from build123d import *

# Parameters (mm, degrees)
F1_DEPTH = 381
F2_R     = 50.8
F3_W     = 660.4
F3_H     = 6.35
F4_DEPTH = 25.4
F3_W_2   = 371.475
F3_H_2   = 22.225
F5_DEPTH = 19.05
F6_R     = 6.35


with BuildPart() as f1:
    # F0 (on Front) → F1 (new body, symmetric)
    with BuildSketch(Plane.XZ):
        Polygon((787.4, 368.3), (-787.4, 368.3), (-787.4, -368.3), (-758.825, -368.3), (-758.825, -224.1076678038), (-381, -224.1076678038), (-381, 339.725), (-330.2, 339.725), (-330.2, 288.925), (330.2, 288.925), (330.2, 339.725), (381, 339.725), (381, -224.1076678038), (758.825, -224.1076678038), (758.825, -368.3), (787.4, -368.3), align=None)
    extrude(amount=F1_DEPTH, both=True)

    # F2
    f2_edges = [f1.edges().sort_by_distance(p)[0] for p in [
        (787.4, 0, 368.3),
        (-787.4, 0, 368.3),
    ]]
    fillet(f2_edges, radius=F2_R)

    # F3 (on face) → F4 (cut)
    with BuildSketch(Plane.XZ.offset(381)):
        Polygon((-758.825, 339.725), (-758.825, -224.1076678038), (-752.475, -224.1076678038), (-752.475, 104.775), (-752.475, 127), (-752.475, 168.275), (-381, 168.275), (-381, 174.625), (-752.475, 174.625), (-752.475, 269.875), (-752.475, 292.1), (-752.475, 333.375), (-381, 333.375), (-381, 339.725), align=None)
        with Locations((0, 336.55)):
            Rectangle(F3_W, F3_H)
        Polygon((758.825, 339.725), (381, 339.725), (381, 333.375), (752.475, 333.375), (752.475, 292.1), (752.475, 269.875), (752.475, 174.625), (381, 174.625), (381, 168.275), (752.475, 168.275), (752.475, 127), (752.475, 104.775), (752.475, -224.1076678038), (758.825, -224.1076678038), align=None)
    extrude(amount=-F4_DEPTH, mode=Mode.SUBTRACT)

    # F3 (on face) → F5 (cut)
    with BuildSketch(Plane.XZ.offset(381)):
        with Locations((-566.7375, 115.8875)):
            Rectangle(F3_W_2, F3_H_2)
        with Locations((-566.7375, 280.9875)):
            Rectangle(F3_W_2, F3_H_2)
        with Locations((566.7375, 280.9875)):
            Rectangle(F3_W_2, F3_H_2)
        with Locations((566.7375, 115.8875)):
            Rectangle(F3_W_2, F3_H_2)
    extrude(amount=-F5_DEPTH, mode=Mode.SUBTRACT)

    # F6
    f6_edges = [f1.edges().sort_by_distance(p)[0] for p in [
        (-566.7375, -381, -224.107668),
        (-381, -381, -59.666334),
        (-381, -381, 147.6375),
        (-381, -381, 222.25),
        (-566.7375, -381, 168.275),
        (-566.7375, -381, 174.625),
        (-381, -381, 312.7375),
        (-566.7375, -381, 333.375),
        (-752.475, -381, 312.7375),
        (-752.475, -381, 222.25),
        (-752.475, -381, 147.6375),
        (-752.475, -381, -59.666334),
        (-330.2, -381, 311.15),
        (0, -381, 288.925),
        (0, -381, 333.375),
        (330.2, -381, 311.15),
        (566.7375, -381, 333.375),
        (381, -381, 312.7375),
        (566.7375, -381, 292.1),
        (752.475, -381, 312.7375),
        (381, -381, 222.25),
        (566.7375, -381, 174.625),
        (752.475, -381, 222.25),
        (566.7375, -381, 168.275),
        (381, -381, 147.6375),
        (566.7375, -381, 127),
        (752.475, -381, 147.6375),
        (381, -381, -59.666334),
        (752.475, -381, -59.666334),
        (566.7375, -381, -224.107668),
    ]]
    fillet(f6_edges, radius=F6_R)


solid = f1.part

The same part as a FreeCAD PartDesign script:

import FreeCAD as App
import Part
import Sketcher

V = App.Vector
Q = App.Units.Quantity


def edges_at(feature, points):
    """Names of the edges that pass closest to the given points."""
    edges = feature.Shape.Edges
    near = lambda p: min(range(len(edges)), key=lambda i: edges[i].distToShape(Part.Vertex(*p))[0])
    return sorted({f"Edge{near(p) + 1}" for p in points})

doc = App.newDocument("Part")
body = doc.addObject("PartDesign::Body", "Body")

# Sketch on XZ plane
sketch1 = body.newObject("Sketcher::SketchObject", "Sketch")
sketch1.AttachmentSupport = (doc.getObject("XZ_Plane"), [""])
sketch1.MapMode = "FlatFace"
sketch1.addGeometry([
    Part.LineSegment(V(787.4, 368.3, 0), V(-787.4, 368.3, 0)),  # 0
    Part.LineSegment(V(-787.4, 368.3, 0), V(-787.4, -368.3, 0)),  # 1
    Part.LineSegment(V(-787.4, -368.3, 0), V(-758.825, -368.3, 0)),  # 2
    Part.LineSegment(V(-758.825, -368.3, 0), V(-758.825, -224.107668, 0)),  # 3
    Part.LineSegment(V(-758.825, -224.107668, 0), V(-381, -224.107668, 0)),  # 4
    Part.LineSegment(V(-381, -224.107668, 0), V(-381, 339.725, 0)),  # 5
    Part.LineSegment(V(-381, 339.725, 0), V(-330.2, 339.725, 0)),  # 6
    Part.LineSegment(V(-330.2, 339.725, 0), V(-330.2, 288.925, 0)),  # 7
    Part.LineSegment(V(-330.2, 288.925, 0), V(330.2, 288.925, 0)),  # 8
    Part.LineSegment(V(330.2, 288.925, 0), V(330.2, 339.725, 0)),  # 9
    Part.LineSegment(V(330.2, 339.725, 0), V(381, 339.725, 0)),  # 10
    Part.LineSegment(V(381, 339.725, 0), V(381, -224.107668, 0)),  # 11
    Part.LineSegment(V(381, -224.107668, 0), V(758.825, -224.107668, 0)),  # 12
    Part.LineSegment(V(758.825, -224.107668, 0), V(758.825, -368.3, 0)),  # 13
    Part.LineSegment(V(758.825, -368.3, 0), V(787.4, -368.3, 0)),  # 14
    Part.LineSegment(V(787.4, -368.3, 0), V(787.4, 368.3, 0)),  # 15
], False)
sketch1.addConstraint([
    Sketcher.Constraint("Coincident", 0, 2, 1, 1),
    Sketcher.Constraint("Coincident", 1, 2, 2, 1),
    Sketcher.Constraint("Coincident", 2, 2, 3, 1),
    Sketcher.Constraint("Coincident", 3, 2, 4, 1),
    Sketcher.Constraint("Coincident", 4, 2, 5, 1),
    Sketcher.Constraint("Coincident", 5, 2, 6, 1),
    Sketcher.Constraint("Coincident", 6, 2, 7, 1),
    Sketcher.Constraint("Coincident", 7, 2, 8, 1),
    Sketcher.Constraint("Coincident", 8, 2, 9, 1),
    Sketcher.Constraint("Coincident", 9, 2, 10, 1),
    Sketcher.Constraint("Coincident", 10, 2, 11, 1),
    Sketcher.Constraint("Coincident", 11, 2, 12, 1),
    Sketcher.Constraint("Coincident", 12, 2, 13, 1),
    Sketcher.Constraint("Coincident", 13, 2, 14, 1),
    Sketcher.Constraint("Coincident", 14, 2, 15, 1),
    Sketcher.Constraint("Coincident", 15, 2, 0, 1),
    Sketcher.Constraint("Horizontal", 0),
    Sketcher.Constraint("Vertical", 1),
    Sketcher.Constraint("Horizontal", 2),
    Sketcher.Constraint("Vertical", 3),
    Sketcher.Constraint("Horizontal", 4),
    Sketcher.Constraint("Vertical", 5),
    Sketcher.Constraint("Horizontal", 6),
    Sketcher.Constraint("Vertical", 7),
    Sketcher.Constraint("Horizontal", 8),
    Sketcher.Constraint("Vertical", 9),
    Sketcher.Constraint("Horizontal", 10),
    Sketcher.Constraint("Vertical", 11),
    Sketcher.Constraint("Horizontal", 12),
    Sketcher.Constraint("Vertical", 13),
    Sketcher.Constraint("Horizontal", 14),
    Sketcher.Constraint("Vertical", 15),
    Sketcher.Constraint("Symmetric", 0, 2, 14, 2, -1, 1),
    Sketcher.Constraint("Symmetric", 6, 2, 9, 2, -2),
    Sketcher.Constraint("Symmetric", 4, 2, 11, 2, -2),
    Sketcher.Constraint("Symmetric", 2, 2, 13, 2, -2),
    Sketcher.Constraint("Equal", 10, 7),
    Sketcher.Constraint("DistanceX", 0, 2, 0, 1, Q("62 in")),
    Sketcher.Constraint("DistanceX", 6, 1, 6, 2, Q("2 in")),
    Sketcher.Constraint("DistanceX", 8, 1, 8, 2, Q("26 in")),
    Sketcher.Constraint("DistanceY", 1, 2, 1, 1, Q("29 in")),
    Sketcher.Constraint("DistanceX", 2, 1, 2, 2, Q("1.125 in")),
    Sketcher.Constraint("DistanceY", -1, 1, 5, 2, Q("13.375 in")),
    Sketcher.Constraint("DistanceY", 3, 1, 3, 2, 144.192332),
])
pad1 = body.newObject("PartDesign::Pad", "Pad")
pad1.Profile = sketch1
pad1.Length = Q("30 in")
pad1.Midplane = True
doc.recompute()

fillet = body.newObject("PartDesign::Fillet", "Fillet")
fillet.Base = (pad1, edges_at(pad1, [(787.4, 0, 368.3), (-787.4, 0, 368.3)]))
fillet.Radius = Q("2 in")

# Sketch on XZ plane
sketch2 = body.newObject("Sketcher::SketchObject", "Sketch001")
sketch2.AttachmentSupport = (doc.getObject("XZ_Plane"), [""])
sketch2.MapMode = "FlatFace"
sketch2.AttachmentOffset = App.Placement(V(0, 0, 15 * 25.4), App.Rotation())
sketch2.addGeometry([
    Part.LineSegment(V(-758.825, 339.725, 0), V(-758.825, -224.107668, 0)),  # 0
    Part.LineSegment(V(-758.825, -224.107668, 0), V(-752.475, -224.107668, 0)),  # 1
    Part.LineSegment(V(-752.475, -224.107668, 0), V(-752.475, 168.275, 0)),  # 2
    Part.LineSegment(V(-752.475, 168.275, 0), V(-381, 168.275, 0)),  # 3
    Part.LineSegment(V(-381, 168.275, 0), V(-381, 174.625, 0)),  # 4
    Part.LineSegment(V(-381, 174.625, 0), V(-752.475, 174.625, 0)),  # 5
    Part.LineSegment(V(-752.475, 174.625, 0), V(-752.475, 333.375, 0)),  # 6
    Part.LineSegment(V(-752.475, 333.375, 0), V(-381, 333.375, 0)),  # 7
    Part.LineSegment(V(-381, 333.375, 0), V(-381, 339.725, 0)),  # 8
    Part.LineSegment(V(-381, 339.725, 0), V(-758.825, 339.725, 0)),  # 9
    Part.LineSegment(V(-330.2, 339.725, 0), V(-330.2, 333.375, 0)),  # 10
    Part.LineSegment(V(-330.2, 333.375, 0), V(330.2, 333.375, 0)),  # 11
    Part.LineSegment(V(330.2, 333.375, 0), V(330.2, 339.725, 0)),  # 12
    Part.LineSegment(V(330.2, 339.725, 0), V(-330.2, 339.725, 0)),  # 13
    Part.LineSegment(V(758.825, 339.725, 0), V(381, 339.725, 0)),  # 14
    Part.LineSegment(V(381, 339.725, 0), V(381, 333.375, 0)),  # 15
    Part.LineSegment(V(381, 333.375, 0), V(752.475, 333.375, 0)),  # 16
    Part.LineSegment(V(752.475, 333.375, 0), V(752.475, 174.625, 0)),  # 17
    Part.LineSegment(V(752.475, 174.625, 0), V(381, 174.625, 0)),  # 18
    Part.LineSegment(V(381, 174.625, 0), V(381, 168.275, 0)),  # 19
    Part.LineSegment(V(381, 168.275, 0), V(752.475, 168.275, 0)),  # 20
    Part.LineSegment(V(752.475, 168.275, 0), V(752.475, -224.107668, 0)),  # 21
    Part.LineSegment(V(752.475, -224.107668, 0), V(758.825, -224.107668, 0)),  # 22
    Part.LineSegment(V(758.825, -224.107668, 0), V(758.825, 339.725, 0)),  # 23
], False)
sketch2.addConstraint([
    Sketcher.Constraint("Coincident", 0, 2, 1, 1),
    Sketcher.Constraint("Coincident", 1, 2, 2, 1),
    Sketcher.Constraint("Coincident", 2, 2, 3, 1),
    Sketcher.Constraint("Coincident", 3, 2, 4, 1),
    Sketcher.Constraint("Coincident", 4, 2, 5, 1),
    Sketcher.Constraint("Coincident", 5, 2, 6, 1),
    Sketcher.Constraint("Coincident", 6, 2, 7, 1),
    Sketcher.Constraint("Coincident", 7, 2, 8, 1),
    Sketcher.Constraint("Coincident", 8, 2, 9, 1),
    Sketcher.Constraint("Coincident", 9, 2, 0, 1),
    Sketcher.Constraint("Coincident", 10, 2, 11, 1),
    Sketcher.Constraint("Coincident", 11, 2, 12, 1),
    Sketcher.Constraint("Coincident", 12, 2, 13, 1),
    Sketcher.Constraint("Coincident", 13, 2, 10, 1),
    Sketcher.Constraint("Coincident", 14, 2, 15, 1),
    Sketcher.Constraint("Coincident", 15, 2, 16, 1),
    Sketcher.Constraint("Coincident", 16, 2, 17, 1),
    Sketcher.Constraint("Coincident", 17, 2, 18, 1),
    Sketcher.Constraint("Coincident", 18, 2, 19, 1),
    Sketcher.Constraint("Coincident", 19, 2, 20, 1),
    Sketcher.Constraint("Coincident", 20, 2, 21, 1),
    Sketcher.Constraint("Coincident", 21, 2, 22, 1),
    Sketcher.Constraint("Coincident", 22, 2, 23, 1),
    Sketcher.Constraint("Coincident", 23, 2, 14, 1),
    Sketcher.Constraint("Vertical", 0),
    Sketcher.Constraint("Horizontal", 1),
    Sketcher.Constraint("Vertical", 2),
    Sketcher.Constraint("Horizontal", 3),
    Sketcher.Constraint("Vertical", 4),
    Sketcher.Constraint("Horizontal", 5),
    Sketcher.Constraint("Vertical", 6),
    Sketcher.Constraint("Horizontal", 7),
    Sketcher.Constraint("Vertical", 8),
    Sketcher.Constraint("Horizontal", 9),
    Sketcher.Constraint("Vertical", 10),
    Sketcher.Constraint("Horizontal", 11),
    Sketcher.Constraint("Vertical", 12),
    Sketcher.Constraint("Horizontal", 13),
    Sketcher.Constraint("Horizontal", 14),
    Sketcher.Constraint("Vertical", 15),
    Sketcher.Constraint("Horizontal", 16),
    Sketcher.Constraint("Vertical", 17),
    Sketcher.Constraint("Horizontal", 18),
    Sketcher.Constraint("Vertical", 19),
    Sketcher.Constraint("Horizontal", 20),
    Sketcher.Constraint("Vertical", 21),
    Sketcher.Constraint("Horizontal", 22),
    Sketcher.Constraint("Vertical", 23),
    Sketcher.Constraint("Symmetric", 8, 2, 14, 2, -2),
    Sketcher.Constraint("Symmetric", 6, 2, 16, 2, -2),
    Sketcher.Constraint("Symmetric", 4, 2, 18, 2, -2),
    Sketcher.Constraint("Symmetric", 2, 2, 20, 2, -2),
    Sketcher.Constraint("Symmetric", 0, 2, 22, 2, -2),
    Sketcher.Constraint("Horizontal", 7, 2, 10, 2),
    Sketcher.Constraint("Horizontal", 9, 2, 12, 2),
    Sketcher.Constraint("Vertical", 2, 2, 5, 2),
    Sketcher.Constraint("Vertical", 4, 2, 7, 2),
    Sketcher.Constraint("Equal", 22, 4),
    Sketcher.Constraint("Equal", 4, 8),
    Sketcher.Constraint("DistanceX", 11, 1, 11, 2, Q("26 in")),
    Sketcher.Constraint("DistanceX", 3, 2, -1, 1, Q("15 in")),
    Sketcher.Constraint("DistanceX", 10, 2, -1, 1, Q("13 in")),
    Sketcher.Constraint("DistanceX", 1, 1, 1, 2, Q("0.25 in")),
    Sketcher.Constraint("DistanceY", 6, 1, 6, 2, Q("6.25 in")),
    Sketcher.Constraint("DistanceX", 3, 1, 3, 2, Q("14.625 in")),
    Sketcher.Constraint("DistanceY", -1, 1, 2, 2, Q("6.625 in")),
    Sketcher.Constraint("DistanceY", 0, 2, 0, 1, 563.832668),
])
pocket1 = body.newObject("PartDesign::Pocket", "Pocket")
pocket1.Profile = sketch2
pocket1.Length = Q("1 in")

# Sketch on XZ plane
sketch3 = body.newObject("Sketcher::SketchObject", "Sketch002")
sketch3.AttachmentSupport = (doc.getObject("XZ_Plane"), [""])
sketch3.MapMode = "FlatFace"
sketch3.AttachmentOffset = App.Placement(V(0, 0, 15 * 25.4), App.Rotation())
sketch3.addGeometry([
    Part.LineSegment(V(-752.475, 127, 0), V(-752.475, 104.775, 0)),  # 0
    Part.LineSegment(V(-752.475, 104.775, 0), V(-381, 104.775, 0)),  # 1
    Part.LineSegment(V(-381, 104.775, 0), V(-381, 127, 0)),  # 2
    Part.LineSegment(V(-381, 127, 0), V(-752.475, 127, 0)),  # 3
    Part.LineSegment(V(-752.475, 292.1, 0), V(-752.475, 269.875, 0)),  # 4
    Part.LineSegment(V(-752.475, 269.875, 0), V(-381, 269.875, 0)),  # 5
    Part.LineSegment(V(-381, 269.875, 0), V(-381, 292.1, 0)),  # 6
    Part.LineSegment(V(-381, 292.1, 0), V(-752.475, 292.1, 0)),  # 7
    Part.LineSegment(V(381, 292.1, 0), V(381, 269.875, 0)),  # 8
    Part.LineSegment(V(381, 269.875, 0), V(752.475, 269.875, 0)),  # 9
    Part.LineSegment(V(752.475, 269.875, 0), V(752.475, 292.1, 0)),  # 10
    Part.LineSegment(V(752.475, 292.1, 0), V(381, 292.1, 0)),  # 11
    Part.LineSegment(V(381, 127, 0), V(381, 104.775, 0)),  # 12
    Part.LineSegment(V(381, 104.775, 0), V(752.475, 104.775, 0)),  # 13
    Part.LineSegment(V(752.475, 104.775, 0), V(752.475, 127, 0)),  # 14
    Part.LineSegment(V(752.475, 127, 0), V(381, 127, 0)),  # 15
], False)
sketch3.addConstraint([
    Sketcher.Constraint("Coincident", 0, 2, 1, 1),
    Sketcher.Constraint("Coincident", 1, 2, 2, 1),
    Sketcher.Constraint("Coincident", 2, 2, 3, 1),
    Sketcher.Constraint("Coincident", 3, 2, 0, 1),
    Sketcher.Constraint("Coincident", 4, 2, 5, 1),
    Sketcher.Constraint("Coincident", 5, 2, 6, 1),
    Sketcher.Constraint("Coincident", 6, 2, 7, 1),
    Sketcher.Constraint("Coincident", 7, 2, 4, 1),
    Sketcher.Constraint("Coincident", 8, 2, 9, 1),
    Sketcher.Constraint("Coincident", 9, 2, 10, 1),
    Sketcher.Constraint("Coincident", 10, 2, 11, 1),
    Sketcher.Constraint("Coincident", 11, 2, 8, 1),
    Sketcher.Constraint("Coincident", 12, 2, 13, 1),
    Sketcher.Constraint("Coincident", 13, 2, 14, 1),
    Sketcher.Constraint("Coincident", 14, 2, 15, 1),
    Sketcher.Constraint("Coincident", 15, 2, 12, 1),
    Sketcher.Constraint("Vertical", 0),
    Sketcher.Constraint("Horizontal", 1),
    Sketcher.Constraint("Vertical", 2),
    Sketcher.Constraint("Horizontal", 3),
    Sketcher.Constraint("Vertical", 4),
    Sketcher.Constraint("Horizontal", 5),
    Sketcher.Constraint("Vertical", 6),
    Sketcher.Constraint("Horizontal", 7),
    Sketcher.Constraint("Vertical", 8),
    Sketcher.Constraint("Horizontal", 9),
    Sketcher.Constraint("Vertical", 10),
    Sketcher.Constraint("Horizontal", 11),
    Sketcher.Constraint("Vertical", 12),
    Sketcher.Constraint("Horizontal", 13),
    Sketcher.Constraint("Vertical", 14),
    Sketcher.Constraint("Horizontal", 15),
    Sketcher.Constraint("Symmetric", 5, 2, 8, 2, -2),
    Sketcher.Constraint("Symmetric", 7, 2, 10, 2, -2),
    Sketcher.Constraint("Symmetric", 1, 2, 12, 2, -2),
    Sketcher.Constraint("Symmetric", 3, 2, 14, 2, -2),
    Sketcher.Constraint("Vertical", 3, 2, 4, 2),
    Sketcher.Constraint("Vertical", 2, 2, 5, 2),
    Sketcher.Constraint("Equal", 2, 4),
    Sketcher.Constraint("DistanceX", 1, 2, -1, 1, Q("15 in")),
    Sketcher.Constraint("DistanceY", -1, 1, 2, 2, Q("5 in")),
    Sketcher.Constraint("DistanceY", -1, 1, 6, 2, Q("11.5 in")),
    Sketcher.Constraint("DistanceX", 1, 1, 1, 2, Q("14.625 in")),
    Sketcher.Constraint("DistanceY", 0, 2, 0, 1, Q("0.875 in")),
])
pocket2 = body.newObject("PartDesign::Pocket", "Pocket001")
pocket2.Profile = sketch3
pocket2.Length = Q("0.75 in")
doc.recompute()

fillet2 = body.newObject("PartDesign::Fillet", "Fillet001")
fillet2.Base = (pocket2, edges_at(pocket2, [
    (-566.737, -381, -224.108),
    (-381, -381, -59.666),
    (-381, -381, 147.637),
    (-381, -381, 222.25),
    (-566.737, -381, 168.275),
    (-566.737, -381, 174.625),
    (-381, -381, 312.738),
    (-566.737, -381, 333.375),
    (-752.475, -381, 312.738),
    (-752.475, -381, 222.25),
    (-752.475, -381, 147.637),
    (-752.475, -381, -59.666),
    (-330.2, -381, 311.15),
    (0, -381, 288.925),
    (0, -381, 333.375),
    (330.2, -381, 311.15),
    (566.737, -381, 333.375),
    (381, -381, 312.738),
    (566.737, -381, 292.1),
    (752.475, -381, 312.738),
    (381, -381, 222.25),
    (566.737, -381, 174.625),
    (752.475, -381, 222.25),
    (566.737, -381, 168.275),
    (381, -381, 147.637),
    (566.737, -381, 127),
    (752.475, -381, 147.637),
    (381, -381, -59.666),
    (752.475, -381, -59.666),
    (566.737, -381, -224.108),
]))
fillet2.Radius = Q("0.25 in")

doc.recompute()
